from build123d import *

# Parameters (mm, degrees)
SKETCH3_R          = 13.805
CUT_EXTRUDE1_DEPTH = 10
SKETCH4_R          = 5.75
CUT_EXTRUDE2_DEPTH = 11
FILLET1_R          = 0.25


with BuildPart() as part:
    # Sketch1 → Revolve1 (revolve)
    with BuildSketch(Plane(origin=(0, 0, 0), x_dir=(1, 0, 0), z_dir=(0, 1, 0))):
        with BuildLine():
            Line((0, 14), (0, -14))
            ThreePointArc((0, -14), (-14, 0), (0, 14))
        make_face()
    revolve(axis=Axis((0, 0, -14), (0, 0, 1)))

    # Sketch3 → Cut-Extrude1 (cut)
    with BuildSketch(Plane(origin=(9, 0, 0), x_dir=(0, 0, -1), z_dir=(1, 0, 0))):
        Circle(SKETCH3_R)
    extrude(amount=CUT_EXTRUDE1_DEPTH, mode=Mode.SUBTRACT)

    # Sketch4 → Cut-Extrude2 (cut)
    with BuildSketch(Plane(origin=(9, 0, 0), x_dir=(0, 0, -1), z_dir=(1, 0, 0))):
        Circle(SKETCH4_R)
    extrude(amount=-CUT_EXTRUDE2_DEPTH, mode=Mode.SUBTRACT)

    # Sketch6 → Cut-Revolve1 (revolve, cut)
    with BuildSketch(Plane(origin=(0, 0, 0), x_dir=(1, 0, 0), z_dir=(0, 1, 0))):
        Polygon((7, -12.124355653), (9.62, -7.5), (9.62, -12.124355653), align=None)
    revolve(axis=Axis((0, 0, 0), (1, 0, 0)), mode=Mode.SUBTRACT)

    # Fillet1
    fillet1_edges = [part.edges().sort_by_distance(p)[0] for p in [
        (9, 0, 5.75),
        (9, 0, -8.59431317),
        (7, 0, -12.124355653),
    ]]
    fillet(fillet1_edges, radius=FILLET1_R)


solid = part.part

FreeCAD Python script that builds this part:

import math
import FreeCAD as App
import Part
import Sketcher
from FreeCAD import Vector


def edges_at(feature, points):
    """Names of the edges that pass closest to the given points."""
    edges = feature.Shape.Edges
    near = lambda p: min(range(len(edges)), key=lambda i: edges[i].distToShape(Part.Vertex(*p))[0])
    return sorted({f"Edge{near(p) + 1}" for p in points})


def add_polygon(sketch, points):
    """Adds a closed chain of lines whose ends are joined by coincident constraints."""
    first, n = sketch.GeometryCount, len(points)
    for a, b in zip(points, points[1:] + points[:1]):
        sketch.addGeometry(Part.LineSegment(App.Vector(*a, 0), App.Vector(*b, 0)), False)
    for i in range(n):
        sketch.addConstraint(Sketcher.Constraint("Coincident", first + i, 2, first + (i + 1) % n, 1))

doc = App.newDocument("Part")
body = doc.addObject("PartDesign::Body", "Body")

sketch1 = body.newObject("Sketcher::SketchObject", "Sketch")
sketch1.AttachmentSupport = (doc.getObject("XZ_Plane"), [""])
sketch1.MapMode = "FlatFace"
sketch1.addGeometry(Part.LineSegment(Vector(0, 14, 0), Vector(0, -14, 0)), False)
sketch1.addGeometry(Part.ArcOfCircle(Part.Circle(Vector(0, 0, 0), Vector(0, 0, 1), 14), math.radians(90), math.radians(270)), False)
sketch1.addConstraint(Sketcher.Constraint("Coincident", 0, 1, 1, 1))
sketch1.addConstraint(Sketcher.Constraint("Coincident", 1, 2, 0, 2))
sketch1.addConstraint(Sketcher.Constraint("Vertical", 0))
sketch1.addConstraint(Sketcher.Constraint("Coincident", 1, 3, -1, 1))
sketch1.addConstraint(Sketcher.Constraint("PointOnObject", 0, 1, -2))
sketch1.addConstraint(Sketcher.Constraint("Radius", 1, 14.0))
revolution = body.newObject("PartDesign::Revolution", "Revolution")
revolution.Profile = sketch1
revolution.ReferenceAxis = (sketch1, ["V_Axis"])
revolution.Angle = 360

sketch2 = body.newObject("Sketcher::SketchObject", "Sketch001")
sketch2.AttachmentSupport = (doc.getObject("YZ_Plane"), [""])
sketch2.MapMode = "FlatFace"
sketch2.AttachmentOffset = App.Placement(Vector(0, 0, 9), App.Rotation())
sketch2.addGeometry(Part.Circle(Vector(0, 0, 0), Vector(0, 0, 1), 14), False)
sketch2.addConstraint(Sketcher.Constraint("Coincident", 0, 3, -1, 1))
sketch2.addConstraint(Sketcher.Constraint("Diameter", 0, 27.61))
pocket1 = body.newObject("PartDesign::Pocket", "Pocket")
pocket1.Profile = sketch2
pocket1.Length = 10
pocket1.Reversed = True

sketch3 = body.newObject("Sketcher::SketchObject", "Sketch002")
sketch3.AttachmentSupport = (doc.getObject("YZ_Plane"), [""])
sketch3.MapMode = "FlatFace"
sketch3.AttachmentOffset = App.Placement(Vector(0, 0, 9), App.Rotation())
sketch3.addGeometry(Part.Circle(Vector(0, 0, 0), Vector(0, 0, 1), 6), False)
sketch3.addConstraint(Sketcher.Constraint("Coincident", 0, 3, -1, 1))
sketch3.addConstraint(Sketcher.Constraint("Diameter", 0, 11.5))
pocket2 = body.newObject("PartDesign::Pocket", "Pocket001")
pocket2.Profile = sketch3
pocket2.Length = 11

sketch4 = body.newObject("Sketcher::SketchObject", "Sketch003")
sketch4.AttachmentSupport = (doc.getObject("XZ_Plane"), [""])
sketch4.MapMode = "FlatFace"
add_polygon(sketch4, [(9.6, 7.5), (7, 12.1), (9.6, 12.1)])
sketch4.addConstraint(Sketcher.Constraint("Horizontal", 1))
sketch4.addConstraint(Sketcher.Constraint("Vertical", 2))
sketch4.addConstraint(Sketcher.Constraint("DistanceX", -1, 1, 0, 2, 7.0))
sketch4.addConstraint(Sketcher.Constraint("DistanceX", 1, 1, 1, 2, 2.62))
sketch4.addConstraint(Sketcher.Constraint("DistanceY", -1, 1, 2, 2, 7.5))
sketch4.addConstraint(Sketcher.Constraint("DistanceY", 2, 2, 2, 1, 4.624356))
groove = body.newObject("PartDesign::Groove", "Groove")
groove.Profile = sketch4
groove.ReferenceAxis = (sketch4, ["H_Axis"])
groove.Angle = 360
doc.recompute()

fillet = body.newObject("PartDesign::Fillet", "Fillet")
fillet.Base = (groove, edges_at(groove, [(9, 0, 5.75), (9, 0, -8.594), (7, 0, -12.124)]))
fillet.Radius = 0.25

doc.recompute()
